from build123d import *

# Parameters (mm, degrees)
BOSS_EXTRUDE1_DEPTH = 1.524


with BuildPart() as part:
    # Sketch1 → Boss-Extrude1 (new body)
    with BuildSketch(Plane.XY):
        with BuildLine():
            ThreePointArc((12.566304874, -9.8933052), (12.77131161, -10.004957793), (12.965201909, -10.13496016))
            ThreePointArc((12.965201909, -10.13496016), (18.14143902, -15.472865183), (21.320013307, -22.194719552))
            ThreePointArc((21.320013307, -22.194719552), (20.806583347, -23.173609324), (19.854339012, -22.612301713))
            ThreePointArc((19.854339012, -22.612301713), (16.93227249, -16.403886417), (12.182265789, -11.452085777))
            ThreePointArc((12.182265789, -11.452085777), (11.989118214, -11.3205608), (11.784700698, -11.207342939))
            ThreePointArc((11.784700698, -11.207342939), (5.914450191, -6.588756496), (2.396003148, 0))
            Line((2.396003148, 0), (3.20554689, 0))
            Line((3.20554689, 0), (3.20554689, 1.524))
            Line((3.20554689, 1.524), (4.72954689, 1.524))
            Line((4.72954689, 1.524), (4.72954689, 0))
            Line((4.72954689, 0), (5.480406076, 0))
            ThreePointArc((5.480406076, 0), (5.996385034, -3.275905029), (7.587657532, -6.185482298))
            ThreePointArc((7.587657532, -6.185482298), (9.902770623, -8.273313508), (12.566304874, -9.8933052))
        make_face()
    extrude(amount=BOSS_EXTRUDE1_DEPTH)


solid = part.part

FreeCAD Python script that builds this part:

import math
import FreeCAD as App
import Part
import Sketcher

V = App.Vector
Q = App.Units.Quantity

doc = App.newDocument("Part")
body = doc.addObject("PartDesign::Body", "Body")

sketch1 = doc.addObject("Sketcher::SketchObject", "Sketch")
body.addObject(sketch1)
sketch1.AttachmentSupport = (doc.XY_Plane, [""])
sketch1.MapMode = "FlatFace"
sketch1.addGeometry(Part.ArcOfCircle(Part.Circle(V(11.455227, -12.177404, 0), V(0, 0, 1), 2.54), math.radians(53.524545), math.radians(64.059834)), False)
sketch1.addGeometry(Part.ArcOfCircle(Part.Circle(V(19.854339, 5.089069, 0), V(0, 0, 1), 16.660942), math.radians(-137.413265), math.radians(-115.940166)), False)
sketch1.addGeometry(Part.ArcOfCircle(Part.Circle(V(15.160498, -0.153903, 0), V(0, 0, 1), 9.681316), math.radians(179.089139), math.radians(218.536452)), False)
sketch1.addGeometry(Part.LineSegment(V(5.480406, 0, 0), V(4.729547, 0, 0)), False)
sketch1.addGeometry(Part.LineSegment(V(4.729547, 0, 0), V(4.729547, 1.524, 0)), False)
sketch1.addGeometry(Part.LineSegment(V(4.729547, 1.524, 0), V(3.205547, 1.524, 0)), False)
sketch1.addGeometry(Part.LineSegment(V(3.205547, 1.524, 0), V(3.205547, 0, 0)), False)
sketch1.addGeometry(Part.LineSegment(V(3.205547, 0, 0), V(2.396003, 0, 0)), False)
sketch1.addGeometry(Part.ArcOfCircle(Part.Circle(V(19.854339, 5.089069, 0), V(0, 0, 1), 18.184942), math.radians(-163.748704), math.radians(-116.343639)), False)
sketch1.addGeometry(Part.ArcOfCircle(Part.Circle(V(10.657566, -13.483561, 0), V(0, 0, 1), 2.54), math.radians(53.110365), math.radians(63.656361)), False)
sketch1.addGeometry(Part.ArcOfCircle(Part.Circle(V(-0.558971, -28.428215, 0), V(0, 0, 1), 21.225646), math.radians(15.90267), math.radians(53.110365)), False)
sketch1.addGeometry(Part.ArcOfCircle(Part.Circle(V(20.597535, -22.439871, 0), V(0, 0, 1), 0.762937), math.radians(-166.93776), math.radians(18.7431)), False)
sketch1.addGeometry(Part.ArcOfCircle(Part.Circle(V(-0.558971, -28.428215, 0), V(0, 0, 1), 22.749646), math.radians(15.90267), math.radians(53.524545)), False)
sketch1.addConstraint(Sketcher.Constraint("Coincident", 0, 2, 1, 2))
sketch1.addConstraint(Sketcher.Constraint("Coincident", 1, 1, 2, 2))
sketch1.addConstraint(Sketcher.Constraint("Coincident", 2, 1, 3, 1))
sketch1.addConstraint(Sketcher.Constraint("Coincident", 3, 2, 4, 1))
sketch1.addConstraint(Sketcher.Constraint("Coincident", 4, 2, 5, 1))
sketch1.addConstraint(Sketcher.Constraint("Coincident", 5, 2, 6, 1))
sketch1.addConstraint(Sketcher.Constraint("Coincident", 6, 2, 7, 1))
sketch1.addConstraint(Sketcher.Constraint("Coincident", 7, 2, 8, 1))
sketch1.addConstraint(Sketcher.Constraint("Coincident", 8, 2, 9, 2))
sketch1.addConstraint(Sketcher.Constraint("Coincident", 9, 1, 10, 2))
sketch1.addConstraint(Sketcher.Constraint("Coincident", 10, 1, 11, 1))
sketch1.addConstraint(Sketcher.Constraint("Coincident", 11, 2, 12, 1))
sketch1.addConstraint(Sketcher.Constraint("Coincident", 12, 2, 0, 1))
sketch1.addConstraint(Sketcher.Constraint("Horizontal", 3))
sketch1.addConstraint(Sketcher.Constraint("Vertical", 4))
sketch1.addConstraint(Sketcher.Constraint("Horizontal", 5))
sketch1.addConstraint(Sketcher.Constraint("Vertical", 6))
sketch1.addConstraint(Sketcher.Constraint("Horizontal", 7))
sketch1.addConstraint(Sketcher.Constraint("Coincident", 8, 3, 1, 3))
sketch1.addConstraint(Sketcher.Constraint("Coincident", 12, 3, 10, 3))
sketch1.addConstraint(Sketcher.Constraint("PointOnObject", 2, 1, -1))
sketch1.addConstraint(Sketcher.Constraint("PointOnObject", 6, 2, -1))
sketch1.addConstraint(Sketcher.Constraint("Radius", 0, Q("0.1 in")))
sketch1.addConstraint(Sketcher.Constraint("Radius", 9, Q("0.1 in")))
sketch1.addConstraint(Sketcher.Constraint("DistanceX", 5, 2, 5, 1, Q("0.06 in")))
sketch1.addConstraint(Sketcher.Constraint("DistanceY", 4, 1, 4, 2, Q("0.06 in")))
sketch1.addConstraint(Sketcher.Constraint("DistanceX", 10, 3, 0, 3, Q("0.4729999 in")))
sketch1.addConstraint(Sketcher.Constraint("Radius", 1, 16.660942))
sketch1.addConstraint(Sketcher.Constraint("Radius", 2, 9.681316))
sketch1.addConstraint(Sketcher.Constraint("Radius", 8, 18.184942))
sketch1.addConstraint(Sketcher.Constraint("Radius", 10, 21.225646))
sketch1.addConstraint(Sketcher.Constraint("Radius", 11, 0.762937))
sketch1.addConstraint(Sketcher.Constraint("Radius", 12, 22.749646))
sketch1.addConstraint(Sketcher.Constraint("DistanceX", 3, 2, 3, 1, 0.750859))
sketch1.addConstraint(Sketcher.Constraint("DistanceX", -1, 1, 2, 3, 15.160498))
sketch1.addConstraint(Sketcher.Constraint("DistanceX", -1, 1, 8, 2, 11.784701))
sketch1.addConstraint(Sketcher.Constraint("DistanceY", 10, 1, -1, 1, 22.612302))
sketch1.addConstraint(Sketcher.Constraint("DistanceX", -1, 1, 12, 2, 12.965202))
sketch1.addConstraint(Sketcher.Constraint("DistanceY", 0, 3, 2, 3, 12.023501))
sketch1.addConstraint(Sketcher.Constraint("DistanceY", 0, 3, 0, 2, 2.284098))
sketch1.addConstraint(Sketcher.Constraint("DistanceX", 2, 1, 0, 2, 7.085899))
sketch1.addConstraint(Sketcher.Constraint("DistanceX", 9, 3, 9, 1, 1.5247))
sketch1.addConstraint(Sketcher.Constraint("DistanceY", 10, 1, 0, 3, 10.434898))
sketch1.addConstraint(Sketcher.Constraint("DistanceX", 7, 2, 7, 1, 0.809544))
sketch1.addConstraint(Sketcher.Constraint("DistanceY", 11, 3, -1, 1, 22.439871))
pad1 = doc.addObject("PartDesign::Pad", "Pad")
body.addObject(pad1)
pad1.Profile = sketch1
pad1.Length = Q("0.06 in")

doc.recompute()
